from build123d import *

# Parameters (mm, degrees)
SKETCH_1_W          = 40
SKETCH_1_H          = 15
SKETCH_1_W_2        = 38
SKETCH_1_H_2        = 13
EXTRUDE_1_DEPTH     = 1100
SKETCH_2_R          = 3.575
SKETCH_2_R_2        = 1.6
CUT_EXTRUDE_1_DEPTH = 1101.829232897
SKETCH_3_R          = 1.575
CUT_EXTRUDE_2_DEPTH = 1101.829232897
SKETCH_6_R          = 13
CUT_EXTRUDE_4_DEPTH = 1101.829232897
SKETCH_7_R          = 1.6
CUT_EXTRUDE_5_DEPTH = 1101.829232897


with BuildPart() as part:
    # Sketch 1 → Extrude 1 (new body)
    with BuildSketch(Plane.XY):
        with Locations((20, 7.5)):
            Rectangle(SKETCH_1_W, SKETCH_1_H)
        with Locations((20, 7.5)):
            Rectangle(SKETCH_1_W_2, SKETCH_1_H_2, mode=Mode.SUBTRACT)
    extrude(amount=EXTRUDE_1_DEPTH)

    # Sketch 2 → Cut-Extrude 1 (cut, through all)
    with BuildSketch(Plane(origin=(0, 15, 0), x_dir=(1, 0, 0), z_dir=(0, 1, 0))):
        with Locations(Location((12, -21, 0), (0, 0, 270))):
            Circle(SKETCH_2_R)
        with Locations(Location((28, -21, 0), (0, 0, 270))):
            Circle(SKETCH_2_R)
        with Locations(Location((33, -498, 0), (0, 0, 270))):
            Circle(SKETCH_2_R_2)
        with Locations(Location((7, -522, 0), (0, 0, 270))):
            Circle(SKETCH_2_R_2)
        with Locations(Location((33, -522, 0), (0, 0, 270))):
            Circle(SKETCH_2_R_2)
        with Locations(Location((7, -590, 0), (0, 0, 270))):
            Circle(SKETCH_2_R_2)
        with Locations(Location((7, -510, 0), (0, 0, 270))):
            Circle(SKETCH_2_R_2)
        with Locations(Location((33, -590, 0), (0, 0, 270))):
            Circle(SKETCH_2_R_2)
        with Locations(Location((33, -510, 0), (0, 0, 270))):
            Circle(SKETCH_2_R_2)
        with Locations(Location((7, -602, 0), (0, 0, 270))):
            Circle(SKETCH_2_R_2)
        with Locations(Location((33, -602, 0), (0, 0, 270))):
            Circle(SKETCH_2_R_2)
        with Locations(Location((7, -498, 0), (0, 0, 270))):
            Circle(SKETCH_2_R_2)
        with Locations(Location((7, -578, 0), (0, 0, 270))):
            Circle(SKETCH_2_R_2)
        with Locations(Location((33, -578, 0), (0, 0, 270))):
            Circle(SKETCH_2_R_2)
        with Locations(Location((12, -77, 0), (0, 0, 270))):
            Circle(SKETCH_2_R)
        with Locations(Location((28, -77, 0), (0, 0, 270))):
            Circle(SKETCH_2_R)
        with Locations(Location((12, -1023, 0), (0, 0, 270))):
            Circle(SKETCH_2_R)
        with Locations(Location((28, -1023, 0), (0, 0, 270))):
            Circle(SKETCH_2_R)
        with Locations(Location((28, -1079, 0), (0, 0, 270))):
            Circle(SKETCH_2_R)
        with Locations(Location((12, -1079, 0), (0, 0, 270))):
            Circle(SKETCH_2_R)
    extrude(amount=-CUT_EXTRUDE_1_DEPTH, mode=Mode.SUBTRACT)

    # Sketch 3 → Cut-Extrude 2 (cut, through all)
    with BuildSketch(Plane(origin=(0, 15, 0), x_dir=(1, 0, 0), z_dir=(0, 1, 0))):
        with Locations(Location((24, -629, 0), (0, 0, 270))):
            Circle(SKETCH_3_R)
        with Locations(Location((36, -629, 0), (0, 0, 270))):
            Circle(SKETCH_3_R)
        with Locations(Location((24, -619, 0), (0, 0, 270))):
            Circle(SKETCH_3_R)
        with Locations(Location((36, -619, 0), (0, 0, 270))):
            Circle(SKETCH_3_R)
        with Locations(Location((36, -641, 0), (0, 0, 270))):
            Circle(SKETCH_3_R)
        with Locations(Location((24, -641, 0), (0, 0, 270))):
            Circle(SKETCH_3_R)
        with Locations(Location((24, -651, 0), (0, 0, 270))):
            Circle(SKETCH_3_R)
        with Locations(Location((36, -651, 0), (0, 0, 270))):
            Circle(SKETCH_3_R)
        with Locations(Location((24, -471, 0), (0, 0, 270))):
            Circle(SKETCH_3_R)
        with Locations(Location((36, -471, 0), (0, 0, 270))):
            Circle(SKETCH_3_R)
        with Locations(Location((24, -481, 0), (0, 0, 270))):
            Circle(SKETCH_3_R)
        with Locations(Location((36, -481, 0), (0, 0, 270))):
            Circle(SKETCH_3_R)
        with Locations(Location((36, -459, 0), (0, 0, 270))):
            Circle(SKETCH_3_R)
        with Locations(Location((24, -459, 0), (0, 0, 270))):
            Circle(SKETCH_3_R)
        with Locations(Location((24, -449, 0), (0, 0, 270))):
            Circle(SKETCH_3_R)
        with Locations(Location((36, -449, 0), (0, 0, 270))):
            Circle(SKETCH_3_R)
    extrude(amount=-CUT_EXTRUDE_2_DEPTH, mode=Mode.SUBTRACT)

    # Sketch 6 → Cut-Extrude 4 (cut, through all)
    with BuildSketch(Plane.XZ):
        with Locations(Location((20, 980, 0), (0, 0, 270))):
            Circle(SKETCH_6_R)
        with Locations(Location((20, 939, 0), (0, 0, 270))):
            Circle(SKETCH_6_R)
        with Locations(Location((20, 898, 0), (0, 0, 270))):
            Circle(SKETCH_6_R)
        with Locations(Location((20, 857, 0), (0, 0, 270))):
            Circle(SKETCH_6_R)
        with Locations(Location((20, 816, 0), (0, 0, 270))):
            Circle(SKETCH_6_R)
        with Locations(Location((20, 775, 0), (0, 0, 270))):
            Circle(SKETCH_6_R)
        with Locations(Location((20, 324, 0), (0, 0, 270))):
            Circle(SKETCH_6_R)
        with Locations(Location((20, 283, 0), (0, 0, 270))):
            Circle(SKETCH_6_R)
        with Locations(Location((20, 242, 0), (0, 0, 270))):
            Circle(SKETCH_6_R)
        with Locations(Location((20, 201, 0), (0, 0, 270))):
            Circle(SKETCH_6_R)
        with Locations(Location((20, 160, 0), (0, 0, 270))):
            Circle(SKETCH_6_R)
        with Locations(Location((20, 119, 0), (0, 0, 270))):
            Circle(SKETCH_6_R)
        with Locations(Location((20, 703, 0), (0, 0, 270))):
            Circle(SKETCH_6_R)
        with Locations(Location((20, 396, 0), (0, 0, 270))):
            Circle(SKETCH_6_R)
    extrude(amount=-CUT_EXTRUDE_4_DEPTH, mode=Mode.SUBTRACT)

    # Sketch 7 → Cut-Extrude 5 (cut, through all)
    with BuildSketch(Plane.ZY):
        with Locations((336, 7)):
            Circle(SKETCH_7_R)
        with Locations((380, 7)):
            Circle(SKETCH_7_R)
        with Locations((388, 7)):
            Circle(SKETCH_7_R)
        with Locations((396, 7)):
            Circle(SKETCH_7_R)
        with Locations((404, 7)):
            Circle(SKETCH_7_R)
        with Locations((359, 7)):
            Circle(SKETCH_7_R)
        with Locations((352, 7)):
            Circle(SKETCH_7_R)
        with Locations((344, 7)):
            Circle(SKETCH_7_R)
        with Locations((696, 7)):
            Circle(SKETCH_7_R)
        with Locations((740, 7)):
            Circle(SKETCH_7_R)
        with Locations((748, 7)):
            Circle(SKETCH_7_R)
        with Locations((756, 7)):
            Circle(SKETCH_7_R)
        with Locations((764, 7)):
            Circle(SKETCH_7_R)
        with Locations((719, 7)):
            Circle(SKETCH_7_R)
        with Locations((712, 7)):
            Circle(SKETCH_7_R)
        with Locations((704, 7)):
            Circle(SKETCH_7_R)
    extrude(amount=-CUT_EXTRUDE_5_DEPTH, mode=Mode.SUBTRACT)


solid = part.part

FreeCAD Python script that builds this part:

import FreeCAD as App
import Part
import Sketcher
from FreeCAD import Vector
Q = App.Units.Quantity

doc = App.newDocument("Part")
params = doc.addObject("Spreadsheet::Sheet", "Params")
for row, (alias, value) in enumerate([
    ("sketch1_width", "40 mm"),
    ("sketch1_width2", "38 mm"),
    ("sketch1_height", "15 mm"),
    ("sketch1_height2", "13 mm"),
    ("pad1_length", "1100 mm"),
    ("sketch2_diameter", "3.2 mm"),
    ("sketch2_diameter2", "7.15 mm"),
    ("sketch3_diameter", "3.15 mm"),
    ("sketch4_diameter", "26 mm"),
    ("sketch5_diameter", "3.2 mm"),
], start=1):
    params.set(f"A{row}", alias)
    params.set(f"B{row}", "=" + value)
    params.setAlias(f"B{row}", alias)

body = doc.addObject("PartDesign::Body", "Body")

# Sketch on XY plane
sketch1 = doc.addObject("Sketcher::SketchObject", "Sketch")
body.addObject(sketch1)
sketch1.AttachmentSupport = (doc.XY_Plane, [""])
sketch1.MapMode = "FlatFace"
sketch1.addGeometry([
    Part.LineSegment(Vector(0, 15, 0), Vector(0, 0, 0)),  # 0
    Part.LineSegment(Vector(0, 0, 0), Vector(40, 0, 0)),  # 1
    Part.LineSegment(Vector(40, 0, 0), Vector(40, 15, 0)),  # 2
    Part.LineSegment(Vector(40, 15, 0), Vector(0, 15, 0)),  # 3
    Part.LineSegment(Vector(39, 1, 0), Vector(1, 1, 0)),  # 4
    Part.LineSegment(Vector(1, 1, 0), Vector(1, 14, 0)),  # 5
    Part.LineSegment(Vector(1, 14, 0), Vector(39, 14, 0)),  # 6
    Part.LineSegment(Vector(39, 14, 0), Vector(39, 1, 0)),  # 7
], False)
sketch1.addConstraint([
    Sketcher.Constraint("Coincident", 0, 2, 1, 1),
    Sketcher.Constraint("Coincident", 1, 2, 2, 1),
    Sketcher.Constraint("Coincident", 2, 2, 3, 1),
    Sketcher.Constraint("Coincident", 3, 2, 0, 1),
    Sketcher.Constraint("Coincident", 4, 2, 5, 1),
    Sketcher.Constraint("Coincident", 5, 2, 6, 1),
    Sketcher.Constraint("Coincident", 6, 2, 7, 1),
    Sketcher.Constraint("Coincident", 7, 2, 4, 1),
    Sketcher.Constraint("Vertical", 0),
    Sketcher.Constraint("Horizontal", 1),
    Sketcher.Constraint("Vertical", 2),
    Sketcher.Constraint("Horizontal", 3),
    Sketcher.Constraint("Horizontal", 4),
    Sketcher.Constraint("Vertical", 5),
    Sketcher.Constraint("Horizontal", 6),
    Sketcher.Constraint("Vertical", 7),
    Sketcher.Constraint("Coincident", 0, 2, -1, 1),
    Sketcher.Constraint("DistanceX", 1, 1, 1, 2, Q("40 mm")),
    Sketcher.Constraint("DistanceX", 4, 2, 4, 1, Q("38 mm")),
    Sketcher.Constraint("DistanceY", 0, 2, 0, 1, Q("15 mm")),
    Sketcher.Constraint("DistanceY", 5, 1, 5, 2, Q("13 mm")),
    Sketcher.Constraint("DistanceX", -1, 1, 4, 2, Q("1 mm")),
    Sketcher.Constraint("DistanceY", -1, 1, 4, 2, Q("1 mm")),
])
sketch1.setExpression("Constraints[17]", "Params.sketch1_width")
sketch1.setExpression("Constraints[18]", "Params.sketch1_width2")
sketch1.setExpression("Constraints[19]", "Params.sketch1_height")
sketch1.setExpression("Constraints[20]", "Params.sketch1_height2")
pad1 = doc.addObject("PartDesign::Pad", "Pad")
body.addObject(pad1)
pad1.Profile = sketch1
pad1.setExpression("Length", "Params.pad1_length")

# Sketch on XZ plane
sketch2 = doc.addObject("Sketcher::SketchObject", "Sketch001")
body.addObject(sketch2)
sketch2.AttachmentSupport = (doc.XZ_Plane, [""])
sketch2.MapMode = "FlatFace"
sketch2.AttachmentOffset = App.Placement(Vector(0, 0, -15), App.Rotation())
sketch2.addGeometry([
    Part.Circle(Vector(12, 21, 0), Vector(0, 0, 1), 3.575),  # 0
    Part.Circle(Vector(28, 21, 0), Vector(0, 0, 1), 3.575),  # 1
    Part.Circle(Vector(33, 498, 0), Vector(0, 0, 1), 1.6),  # 2
    Part.Circle(Vector(7, 522, 0), Vector(0, 0, 1), 1.6),  # 3
    Part.Circle(Vector(33, 522, 0), Vector(0, 0, 1), 1.6),  # 4
    Part.Circle(Vector(7, 590, 0), Vector(0, 0, 1), 1.6),  # 5
    Part.Circle(Vector(7, 510, 0), Vector(0, 0, 1), 1.6),  # 6
    Part.Circle(Vector(33, 590, 0), Vector(0, 0, 1), 1.6),  # 7
    Part.Circle(Vector(33, 510, 0), Vector(0, 0, 1), 1.6),  # 8
    Part.Circle(Vector(7, 602, 0), Vector(0, 0, 1), 1.6),  # 9
    Part.Circle(Vector(33, 602, 0), Vector(0, 0, 1), 1.6),  # 10
    Part.Circle(Vector(7, 498, 0), Vector(0, 0, 1), 1.6),  # 11
    Part.Circle(Vector(7, 578, 0), Vector(0, 0, 1), 1.6),  # 12
    Part.Circle(Vector(33, 578, 0), Vector(0, 0, 1), 1.6),  # 13
    Part.Circle(Vector(12, 77, 0), Vector(0, 0, 1), 3.575),  # 14
    Part.Circle(Vector(28, 77, 0), Vector(0, 0, 1), 3.575),  # 15
    Part.Circle(Vector(12, 1023, 0), Vector(0, 0, 1), 3.575),  # 16
    Part.Circle(Vector(28, 1023, 0), Vector(0, 0, 1), 3.575),  # 17
    Part.Circle(Vector(28, 1079, 0), Vector(0, 0, 1), 3.575),  # 18
    Part.Circle(Vector(12, 1079, 0), Vector(0, 0, 1), 3.575),  # 19
], False)
sketch2.addConstraint([
    Sketcher.Constraint("Equal", 0, 1),
    Sketcher.Constraint("Equal", 2, 3),
    Sketcher.Constraint("Equal", 3, 4),
    Sketcher.Constraint("Equal", 4, 5),
    Sketcher.Constraint("Equal", 5, 6),
    Sketcher.Constraint("Equal", 6, 7),
    Sketcher.Constraint("Equal", 7, 8),
    Sketcher.Constraint("Equal", 8, 9),
    Sketcher.Constraint("Equal", 9, 10),
    Sketcher.Constraint("Equal", 10, 11),
    Sketcher.Constraint("Equal", 11, 12),
    Sketcher.Constraint("Equal", 12, 13),
    Sketcher.Constraint("Equal", 1, 14),
    Sketcher.Constraint("Equal", 14, 15),
    Sketcher.Constraint("Equal", 15, 16),
    Sketcher.Constraint("Equal", 16, 17),
    Sketcher.Constraint("Equal", 17, 18),
    Sketcher.Constraint("Equal", 18, 19),
    Sketcher.Constraint("Horizontal", 0, 3, 1, 3),
    Sketcher.Constraint("Horizontal", 3, 3, 4, 3),
    Sketcher.Constraint("Horizontal", 5, 3, 7, 3),
    Sketcher.Constraint("Horizontal", 6, 3, 8, 3),
    Sketcher.Constraint("Horizontal", 9, 3, 10, 3),
    Sketcher.Constraint("Horizontal", 2, 3, 11, 3),
    Sketcher.Constraint("Horizontal", 12, 3, 13, 3),
    Sketcher.Constraint("Horizontal", 14, 3, 15, 3),
    Sketcher.Constraint("Horizontal", 16, 3, 17, 3),
    Sketcher.Constraint("Horizontal", 18, 3, 19, 3),
    Sketcher.Constraint("Vertical", 2, 3, 4, 3),
    Sketcher.Constraint("Vertical", 3, 3, 5, 3),
    Sketcher.Constraint("Vertical", 5, 3, 6, 3),
    Sketcher.Constraint("Vertical", 4, 3, 7, 3),
    Sketcher.Constraint("Vertical", 7, 3, 8, 3),
    Sketcher.Constraint("Vertical", 6, 3, 9, 3),
    Sketcher.Constraint("Vertical", 8, 3, 10, 3),
    Sketcher.Constraint("Vertical", 9, 3, 11, 3),
    Sketcher.Constraint("Vertical", 11, 3, 12, 3),
    Sketcher.Constraint("Vertical", 10, 3, 13, 3),
    Sketcher.Constraint("Vertical", 0, 3, 14, 3),
    Sketcher.Constraint("Vertical", 1, 3, 15, 3),
    Sketcher.Constraint("Vertical", 14, 3, 16, 3),
    Sketcher.Constraint("Vertical", 15, 3, 17, 3),
    Sketcher.Constraint("Vertical", 17, 3, 18, 3),
    Sketcher.Constraint("Vertical", 16, 3, 19, 3),
    Sketcher.Constraint("Diameter", 2, Q("3.2 mm")),
    Sketcher.Constraint("Diameter", 0, Q("7.15 mm")),
    Sketcher.Constraint("DistanceX", -1, 1, 0, 3, Q("12 mm")),
    Sketcher.Constraint("DistanceY", -1, 1, 0, 3, Q("21 mm")),
    Sketcher.Constraint("DistanceX", -1, 1, 1, 3, Q("28 mm")),
    Sketcher.Constraint("DistanceX", -1, 1, 2, 3, Q("33 mm")),
    Sketcher.Constraint("DistanceY", -1, 1, 2, 3, Q("498 mm")),
    Sketcher.Constraint("DistanceX", -1, 1, 3, 3, Q("7 mm")),
    Sketcher.Constraint("DistanceY", -1, 1, 3, 3, Q("522 mm")),
    Sketcher.Constraint("DistanceY", -1, 1, 5, 3, Q("590 mm")),
    Sketcher.Constraint("DistanceY", -1, 1, 6, 3, Q("510 mm")),
    Sketcher.Constraint("DistanceY", -1, 1, 9, 3, Q("602 mm")),
    Sketcher.Constraint("DistanceY", -1, 1, 12, 3, Q("578 mm")),
    Sketcher.Constraint("DistanceY", -1, 1, 14, 3, Q("77 mm")),
    Sketcher.Constraint("DistanceY", -1, 1, 16, 3, Q("1023 mm")),
    Sketcher.Constraint("DistanceY", -1, 1, 18, 3, Q("1079 mm")),
])
sketch2.setExpression("Constraints[44]", "Params.sketch2_diameter")
sketch2.setExpression("Constraints[45]", "Params.sketch2_diameter2")
pocket1 = doc.addObject("PartDesign::Pocket", "Pocket")
body.addObject(pocket1)
pocket1.Profile = sketch2
pocket1.Type = "ThroughAll"
pocket1.Reversed = True

# Sketch on XZ plane
sketch3 = doc.addObject("Sketcher::SketchObject", "Sketch002")
body.addObject(sketch3)
sketch3.AttachmentSupport = (doc.XZ_Plane, [""])
sketch3.MapMode = "FlatFace"
sketch3.AttachmentOffset = App.Placement(Vector(0, 0, -15), App.Rotation())
sketch3.addGeometry([
    Part.Circle(Vector(24, 629, 0), Vector(0, 0, 1), 1.575),  # 0
    Part.Circle(Vector(36, 629, 0), Vector(0, 0, 1), 1.575),  # 1
    Part.Circle(Vector(24, 619, 0), Vector(0, 0, 1), 1.575),  # 2
    Part.Circle(Vector(36, 619, 0), Vector(0, 0, 1), 1.575),  # 3
    Part.Circle(Vector(36, 641, 0), Vector(0, 0, 1), 1.575),  # 4
    Part.Circle(Vector(24, 641, 0), Vector(0, 0, 1), 1.575),  # 5
    Part.Circle(Vector(24, 651, 0), Vector(0, 0, 1), 1.575),  # 6
    Part.Circle(Vector(36, 651, 0), Vector(0, 0, 1), 1.575),  # 7
    Part.Circle(Vector(24, 471, 0), Vector(0, 0, 1), 1.575),  # 8
    Part.Circle(Vector(36, 471, 0), Vector(0, 0, 1), 1.575),  # 9
    Part.Circle(Vector(24, 481, 0), Vector(0, 0, 1), 1.575),  # 10
    Part.Circle(Vector(36, 481, 0), Vector(0, 0, 1), 1.575),  # 11
    Part.Circle(Vector(36, 459, 0), Vector(0, 0, 1), 1.575),  # 12
    Part.Circle(Vector(24, 459, 0), Vector(0, 0, 1), 1.575),  # 13
    Part.Circle(Vector(24, 449, 0), Vector(0, 0, 1), 1.575),  # 14
    Part.Circle(Vector(36, 449, 0), Vector(0, 0, 1), 1.575),  # 15
], False)
sketch3.addConstraint([
    Sketcher.Constraint("Equal", 0, 1),
    Sketcher.Constraint("Equal", 1, 2),
    Sketcher.Constraint("Equal", 2, 3),
    Sketcher.Constraint("Equal", 3, 4),
    Sketcher.Constraint("Equal", 4, 5),
    Sketcher.Constraint("Equal", 5, 6),
    Sketcher.Constraint("Equal", 6, 7),
    Sketcher.Constraint("Equal", 7, 8),
    Sketcher.Constraint("Equal", 8, 9),
    Sketcher.Constraint("Equal", 9, 10),
    Sketcher.Constraint("Equal", 10, 11),
    Sketcher.Constraint("Equal", 11, 12),
    Sketcher.Constraint("Equal", 12, 13),
    Sketcher.Constraint("Equal", 13, 14),
    Sketcher.Constraint("Equal", 14, 15),
    Sketcher.Constraint("Horizontal", 0, 3, 1, 3),
    Sketcher.Constraint("Horizontal", 2, 3, 3, 3),
    Sketcher.Constraint("Horizontal", 4, 3, 5, 3),
    Sketcher.Constraint("Horizontal", 6, 3, 7, 3),
    Sketcher.Constraint("Horizontal", 8, 3, 9, 3),
    Sketcher.Constraint("Horizontal", 10, 3, 11, 3),
    Sketcher.Constraint("Horizontal", 12, 3, 13, 3),
    Sketcher.Constraint("Horizontal", 14, 3, 15, 3),
    Sketcher.Constraint("Vertical", 0, 3, 2, 3),
    Sketcher.Constraint("Vertical", 1, 3, 3, 3),
    Sketcher.Constraint("Vertical", 3, 3, 4, 3),
    Sketcher.Constraint("Vertical", 2, 3, 5, 3),
    Sketcher.Constraint("Vertical", 5, 3, 6, 3),
    Sketcher.Constraint("Vertical", 4, 3, 7, 3),
    Sketcher.Constraint("Vertical", 6, 3, 8, 3),
    Sketcher.Constraint("Vertical", 7, 3, 9, 3),
    Sketcher.Constraint("Vertical", 8, 3, 10, 3),
    Sketcher.Constraint("Vertical", 9, 3, 11, 3),
    Sketcher.Constraint("Vertical", 11, 3, 12, 3),
    Sketcher.Constraint("Vertical", 10, 3, 13, 3),
    Sketcher.Constraint("Vertical", 13, 3, 14, 3),
    Sketcher.Constraint("Vertical", 12, 3, 15, 3),
    Sketcher.Constraint("Diameter", 0, Q("3.15 mm")),
    Sketcher.Constraint("DistanceX", -1, 1, 0, 3, Q("24 mm")),
    Sketcher.Constraint("DistanceY", -1, 1, 0, 3, Q("629 mm")),
    Sketcher.Constraint("DistanceX", -1, 1, 1, 3, Q("36 mm")),
    Sketcher.Constraint("DistanceY", -1, 1, 2, 3, Q("619 mm")),
    Sketcher.Constraint("DistanceY", -1, 1, 4, 3, Q("641 mm")),
    Sketcher.Constraint("DistanceY", -1, 1, 6, 3, Q("651 mm")),
    Sketcher.Constraint("DistanceY", -1, 1, 8, 3, Q("471 mm")),
    Sketcher.Constraint("DistanceY", -1, 1, 10, 3, Q("481 mm")),
    Sketcher.Constraint("DistanceY", -1, 1, 12, 3, Q("459 mm")),
    Sketcher.Constraint("DistanceY", -1, 1, 14, 3, Q("449 mm")),
])
sketch3.setExpression("Constraints[37]", "Params.sketch3_diameter")
pocket2 = doc.addObject("PartDesign::Pocket", "Pocket001")
body.addObject(pocket2)
pocket2.Profile = sketch3
pocket2.Type = "ThroughAll"
pocket2.Reversed = True

# Sketch on XZ plane
sketch4 = doc.addObject("Sketcher::SketchObject", "Sketch003")
body.addObject(sketch4)
sketch4.AttachmentSupport = (doc.XZ_Plane, [""])
sketch4.MapMode = "FlatFace"
sketch4.addGeometry([
    Part.Circle(Vector(20, 980, 0), Vector(0, 0, 1), 13),  # 0
    Part.Circle(Vector(20, 939, 0), Vector(0, 0, 1), 13),  # 1
    Part.Circle(Vector(20, 898, 0), Vector(0, 0, 1), 13),  # 2
    Part.Circle(Vector(20, 857, 0), Vector(0, 0, 1), 13),  # 3
    Part.Circle(Vector(20, 816, 0), Vector(0, 0, 1), 13),  # 4
    Part.Circle(Vector(20, 775, 0), Vector(0, 0, 1), 13),  # 5
    Part.Circle(Vector(20, 324, 0), Vector(0, 0, 1), 13),  # 6
    Part.Circle(Vector(20, 283, 0), Vector(0, 0, 1), 13),  # 7
    Part.Circle(Vector(20, 242, 0), Vector(0, 0, 1), 13),  # 8
    Part.Circle(Vector(20, 201, 0), Vector(0, 0, 1), 13),  # 9
    Part.Circle(Vector(20, 160, 0), Vector(0, 0, 1), 13),  # 10
    Part.Circle(Vector(20, 119, 0), Vector(0, 0, 1), 13),  # 11
    Part.Circle(Vector(20, 703, 0), Vector(0, 0, 1), 13),  # 12
    Part.Circle(Vector(20, 396, 0), Vector(0, 0, 1), 13),  # 13
], False)
sketch4.addConstraint([
    Sketcher.Constraint("Equal", 0, 1),
    Sketcher.Constraint("Equal", 1, 2),
    Sketcher.Constraint("Equal", 2, 3),
    Sketcher.Constraint("Equal", 3, 4),
    Sketcher.Constraint("Equal", 4, 5),
    Sketcher.Constraint("Equal", 5, 6),
    Sketcher.Constraint("Equal", 6, 7),
    Sketcher.Constraint("Equal", 7, 8),
    Sketcher.Constraint("Equal", 8, 9),
    Sketcher.Constraint("Equal", 9, 10),
    Sketcher.Constraint("Equal", 10, 11),
    Sketcher.Constraint("Equal", 11, 12),
    Sketcher.Constraint("Equal", 12, 13),
    Sketcher.Constraint("Vertical", 0, 3, 1, 3),
    Sketcher.Constraint("Vertical", 1, 3, 2, 3),
    Sketcher.Constraint("Vertical", 2, 3, 3, 3),
    Sketcher.Constraint("Vertical", 3, 3, 4, 3),
    Sketcher.Constraint("Vertical", 4, 3, 5, 3),
    Sketcher.Constraint("Vertical", 5, 3, 6, 3),
    Sketcher.Constraint("Vertical", 6, 3, 7, 3),
    Sketcher.Constraint("Vertical", 7, 3, 8, 3),
    Sketcher.Constraint("Vertical", 8, 3, 9, 3),
    Sketcher.Constraint("Vertical", 9, 3, 10, 3),
    Sketcher.Constraint("Vertical", 10, 3, 11, 3),
    Sketcher.Constraint("Vertical", 11, 3, 12, 3),
    Sketcher.Constraint("Vertical", 12, 3, 13, 3),
    Sketcher.Constraint("Diameter", 0, Q("26 mm")),
    Sketcher.Constraint("DistanceX", -1, 1, 0, 3, Q("20 mm")),
    Sketcher.Constraint("DistanceY", -1, 1, 0, 3, Q("980 mm")),
    Sketcher.Constraint("DistanceY", -1, 1, 1, 3, Q("939 mm")),
    Sketcher.Constraint("DistanceY", -1, 1, 2, 3, Q("898 mm")),
    Sketcher.Constraint("DistanceY", -1, 1, 3, 3, Q("857 mm")),
    Sketcher.Constraint("DistanceY", -1, 1, 4, 3, Q("816 mm")),
    Sketcher.Constraint("DistanceY", -1, 1, 5, 3, Q("775 mm")),
    Sketcher.Constraint("DistanceY", -1, 1, 6, 3, Q("324 mm")),
    Sketcher.Constraint("DistanceY", -1, 1, 7, 3, Q("283 mm")),
    Sketcher.Constraint("DistanceY", -1, 1, 8, 3, Q("242 mm")),
    Sketcher.Constraint("DistanceY", -1, 1, 9, 3, Q("201 mm")),
    Sketcher.Constraint("DistanceY", -1, 1, 10, 3, Q("160 mm")),
    Sketcher.Constraint("DistanceY", -1, 1, 11, 3, Q("119 mm")),
    Sketcher.Constraint("DistanceY", -1, 1, 12, 3, Q("703 mm")),
    Sketcher.Constraint("DistanceY", -1, 1, 13, 3, Q("396 mm")),
])
sketch4.setExpression("Constraints[26]", "Params.sketch4_diameter")
pocket3 = doc.addObject("PartDesign::Pocket", "Pocket002")
body.addObject(pocket3)
pocket3.Profile = sketch4
pocket3.Type = "ThroughAll"

# Sketch on YZ plane
sketch5 = doc.addObject("Sketcher::SketchObject", "Sketch004")
body.addObject(sketch5)
sketch5.AttachmentSupport = (doc.YZ_Plane, [""])
sketch5.MapMode = "FlatFace"
sketch5.addGeometry([
    Part.Circle(Vector(7, 336, 0), Vector(0, 0, 1), 1.6),  # 0
    Part.Circle(Vector(7, 380, 0), Vector(0, 0, 1), 1.6),  # 1
    Part.Circle(Vector(7, 388, 0), Vector(0, 0, 1), 1.6),  # 2
    Part.Circle(Vector(7, 396, 0), Vector(0, 0, 1), 1.6),  # 3
    Part.Circle(Vector(7, 404, 0), Vector(0, 0, 1), 1.6),  # 4
    Part.Circle(Vector(7, 359, 0), Vector(0, 0, 1), 1.6),  # 5
    Part.Circle(Vector(7, 352, 0), Vector(0, 0, 1), 1.6),  # 6
    Part.Circle(Vector(7, 344, 0), Vector(0, 0, 1), 1.6),  # 7
    Part.Circle(Vector(7, 696, 0), Vector(0, 0, 1), 1.6),  # 8
    Part.Circle(Vector(7, 740, 0), Vector(0, 0, 1), 1.6),  # 9
    Part.Circle(Vector(7, 748, 0), Vector(0, 0, 1), 1.6),  # 10
    Part.Circle(Vector(7, 756, 0), Vector(0, 0, 1), 1.6),  # 11
    Part.Circle(Vector(7, 764, 0), Vector(0, 0, 1), 1.6),  # 12
    Part.Circle(Vector(7, 719, 0), Vector(0, 0, 1), 1.6),  # 13
    Part.Circle(Vector(7, 712, 0), Vector(0, 0, 1), 1.6),  # 14
    Part.Circle(Vector(7, 704, 0), Vector(0, 0, 1), 1.6),  # 15
], False)
sketch5.addConstraint([
    Sketcher.Constraint("Equal", 0, 1),
    Sketcher.Constraint("Equal", 1, 2),
    Sketcher.Constraint("Equal", 2, 3),
    Sketcher.Constraint("Equal", 3, 4),
    Sketcher.Constraint("Equal", 4, 5),
    Sketcher.Constraint("Equal", 5, 6),
    Sketcher.Constraint("Equal", 6, 7),
    Sketcher.Constraint("Equal", 7, 8),
    Sketcher.Constraint("Equal", 8, 9),
    Sketcher.Constraint("Equal", 9, 10),
    Sketcher.Constraint("Equal", 10, 11),
    Sketcher.Constraint("Equal", 11, 12),
    Sketcher.Constraint("Equal", 12, 13),
    Sketcher.Constraint("Equal", 13, 14),
    Sketcher.Constraint("Equal", 14, 15),
    Sketcher.Constraint("Vertical", 0, 3, 1, 3),
    Sketcher.Constraint("Vertical", 1, 3, 2, 3),
    Sketcher.Constraint("Vertical", 2, 3, 3, 3),
    Sketcher.Constraint("Vertical", 3, 3, 4, 3),
    Sketcher.Constraint("Vertical", 4, 3, 5, 3),
    Sketcher.Constraint("Vertical", 5, 3, 6, 3),
    Sketcher.Constraint("Vertical", 6, 3, 7, 3),
    Sketcher.Constraint("Vertical", 7, 3, 8, 3),
    Sketcher.Constraint("Vertical", 8, 3, 9, 3),
    Sketcher.Constraint("Vertical", 9, 3, 10, 3),
    Sketcher.Constraint("Vertical", 10, 3, 11, 3),
    Sketcher.Constraint("Vertical", 11, 3, 12, 3),
    Sketcher.Constraint("Vertical", 12, 3, 13, 3),
    Sketcher.Constraint("Vertical", 13, 3, 14, 3),
    Sketcher.Constraint("Vertical", 14, 3, 15, 3),
    Sketcher.Constraint("Diameter", 0, Q("3.2 mm")),
    Sketcher.Constraint("DistanceX", -1, 1, 0, 3, Q("7 mm")),
    Sketcher.Constraint("DistanceY", -1, 1, 0, 3, Q("336 mm")),
    Sketcher.Constraint("DistanceY", -1, 1, 1, 3, Q("380 mm")),
    Sketcher.Constraint("DistanceY", -1, 1, 2, 3, Q("388 mm")),
    Sketcher.Constraint("DistanceY", -1, 1, 3, 3, Q("396 mm")),
    Sketcher.Constraint("DistanceY", -1, 1, 4, 3, Q("404 mm")),
    Sketcher.Constraint("DistanceY", -1, 1, 5, 3, Q("359 mm")),
    Sketcher.Constraint("DistanceY", -1, 1, 6, 3, Q("352 mm")),
    Sketcher.Constraint("DistanceY", -1, 1, 7, 3, Q("344 mm")),
    Sketcher.Constraint("DistanceY", -1, 1, 8, 3, Q("696 mm")),
    Sketcher.Constraint("DistanceY", -1, 1, 9, 3, Q("740 mm")),
    Sketcher.Constraint("DistanceY", -1, 1, 10, 3, Q("748 mm")),
    Sketcher.Constraint("DistanceY", -1, 1, 11, 3, Q("756 mm")),
    Sketcher.Constraint("DistanceY", -1, 1, 12, 3, Q("764 mm")),
    Sketcher.Constraint("DistanceY", -1, 1, 13, 3, Q("719 mm")),
    Sketcher.Constraint("DistanceY", -1, 1, 14, 3, Q("712 mm")),
    Sketcher.Constraint("DistanceY", -1, 1, 15, 3, Q("704 mm")),
])
sketch5.setExpression("Constraints[30]", "Params.sketch5_diameter")
pocket4 = doc.addObject("PartDesign::Pocket", "Pocket003")
body.addObject(pocket4)
pocket4.Profile = sketch5
pocket4.Type = "ThroughAll"
pocket4.Reversed = True

doc.recompute()
